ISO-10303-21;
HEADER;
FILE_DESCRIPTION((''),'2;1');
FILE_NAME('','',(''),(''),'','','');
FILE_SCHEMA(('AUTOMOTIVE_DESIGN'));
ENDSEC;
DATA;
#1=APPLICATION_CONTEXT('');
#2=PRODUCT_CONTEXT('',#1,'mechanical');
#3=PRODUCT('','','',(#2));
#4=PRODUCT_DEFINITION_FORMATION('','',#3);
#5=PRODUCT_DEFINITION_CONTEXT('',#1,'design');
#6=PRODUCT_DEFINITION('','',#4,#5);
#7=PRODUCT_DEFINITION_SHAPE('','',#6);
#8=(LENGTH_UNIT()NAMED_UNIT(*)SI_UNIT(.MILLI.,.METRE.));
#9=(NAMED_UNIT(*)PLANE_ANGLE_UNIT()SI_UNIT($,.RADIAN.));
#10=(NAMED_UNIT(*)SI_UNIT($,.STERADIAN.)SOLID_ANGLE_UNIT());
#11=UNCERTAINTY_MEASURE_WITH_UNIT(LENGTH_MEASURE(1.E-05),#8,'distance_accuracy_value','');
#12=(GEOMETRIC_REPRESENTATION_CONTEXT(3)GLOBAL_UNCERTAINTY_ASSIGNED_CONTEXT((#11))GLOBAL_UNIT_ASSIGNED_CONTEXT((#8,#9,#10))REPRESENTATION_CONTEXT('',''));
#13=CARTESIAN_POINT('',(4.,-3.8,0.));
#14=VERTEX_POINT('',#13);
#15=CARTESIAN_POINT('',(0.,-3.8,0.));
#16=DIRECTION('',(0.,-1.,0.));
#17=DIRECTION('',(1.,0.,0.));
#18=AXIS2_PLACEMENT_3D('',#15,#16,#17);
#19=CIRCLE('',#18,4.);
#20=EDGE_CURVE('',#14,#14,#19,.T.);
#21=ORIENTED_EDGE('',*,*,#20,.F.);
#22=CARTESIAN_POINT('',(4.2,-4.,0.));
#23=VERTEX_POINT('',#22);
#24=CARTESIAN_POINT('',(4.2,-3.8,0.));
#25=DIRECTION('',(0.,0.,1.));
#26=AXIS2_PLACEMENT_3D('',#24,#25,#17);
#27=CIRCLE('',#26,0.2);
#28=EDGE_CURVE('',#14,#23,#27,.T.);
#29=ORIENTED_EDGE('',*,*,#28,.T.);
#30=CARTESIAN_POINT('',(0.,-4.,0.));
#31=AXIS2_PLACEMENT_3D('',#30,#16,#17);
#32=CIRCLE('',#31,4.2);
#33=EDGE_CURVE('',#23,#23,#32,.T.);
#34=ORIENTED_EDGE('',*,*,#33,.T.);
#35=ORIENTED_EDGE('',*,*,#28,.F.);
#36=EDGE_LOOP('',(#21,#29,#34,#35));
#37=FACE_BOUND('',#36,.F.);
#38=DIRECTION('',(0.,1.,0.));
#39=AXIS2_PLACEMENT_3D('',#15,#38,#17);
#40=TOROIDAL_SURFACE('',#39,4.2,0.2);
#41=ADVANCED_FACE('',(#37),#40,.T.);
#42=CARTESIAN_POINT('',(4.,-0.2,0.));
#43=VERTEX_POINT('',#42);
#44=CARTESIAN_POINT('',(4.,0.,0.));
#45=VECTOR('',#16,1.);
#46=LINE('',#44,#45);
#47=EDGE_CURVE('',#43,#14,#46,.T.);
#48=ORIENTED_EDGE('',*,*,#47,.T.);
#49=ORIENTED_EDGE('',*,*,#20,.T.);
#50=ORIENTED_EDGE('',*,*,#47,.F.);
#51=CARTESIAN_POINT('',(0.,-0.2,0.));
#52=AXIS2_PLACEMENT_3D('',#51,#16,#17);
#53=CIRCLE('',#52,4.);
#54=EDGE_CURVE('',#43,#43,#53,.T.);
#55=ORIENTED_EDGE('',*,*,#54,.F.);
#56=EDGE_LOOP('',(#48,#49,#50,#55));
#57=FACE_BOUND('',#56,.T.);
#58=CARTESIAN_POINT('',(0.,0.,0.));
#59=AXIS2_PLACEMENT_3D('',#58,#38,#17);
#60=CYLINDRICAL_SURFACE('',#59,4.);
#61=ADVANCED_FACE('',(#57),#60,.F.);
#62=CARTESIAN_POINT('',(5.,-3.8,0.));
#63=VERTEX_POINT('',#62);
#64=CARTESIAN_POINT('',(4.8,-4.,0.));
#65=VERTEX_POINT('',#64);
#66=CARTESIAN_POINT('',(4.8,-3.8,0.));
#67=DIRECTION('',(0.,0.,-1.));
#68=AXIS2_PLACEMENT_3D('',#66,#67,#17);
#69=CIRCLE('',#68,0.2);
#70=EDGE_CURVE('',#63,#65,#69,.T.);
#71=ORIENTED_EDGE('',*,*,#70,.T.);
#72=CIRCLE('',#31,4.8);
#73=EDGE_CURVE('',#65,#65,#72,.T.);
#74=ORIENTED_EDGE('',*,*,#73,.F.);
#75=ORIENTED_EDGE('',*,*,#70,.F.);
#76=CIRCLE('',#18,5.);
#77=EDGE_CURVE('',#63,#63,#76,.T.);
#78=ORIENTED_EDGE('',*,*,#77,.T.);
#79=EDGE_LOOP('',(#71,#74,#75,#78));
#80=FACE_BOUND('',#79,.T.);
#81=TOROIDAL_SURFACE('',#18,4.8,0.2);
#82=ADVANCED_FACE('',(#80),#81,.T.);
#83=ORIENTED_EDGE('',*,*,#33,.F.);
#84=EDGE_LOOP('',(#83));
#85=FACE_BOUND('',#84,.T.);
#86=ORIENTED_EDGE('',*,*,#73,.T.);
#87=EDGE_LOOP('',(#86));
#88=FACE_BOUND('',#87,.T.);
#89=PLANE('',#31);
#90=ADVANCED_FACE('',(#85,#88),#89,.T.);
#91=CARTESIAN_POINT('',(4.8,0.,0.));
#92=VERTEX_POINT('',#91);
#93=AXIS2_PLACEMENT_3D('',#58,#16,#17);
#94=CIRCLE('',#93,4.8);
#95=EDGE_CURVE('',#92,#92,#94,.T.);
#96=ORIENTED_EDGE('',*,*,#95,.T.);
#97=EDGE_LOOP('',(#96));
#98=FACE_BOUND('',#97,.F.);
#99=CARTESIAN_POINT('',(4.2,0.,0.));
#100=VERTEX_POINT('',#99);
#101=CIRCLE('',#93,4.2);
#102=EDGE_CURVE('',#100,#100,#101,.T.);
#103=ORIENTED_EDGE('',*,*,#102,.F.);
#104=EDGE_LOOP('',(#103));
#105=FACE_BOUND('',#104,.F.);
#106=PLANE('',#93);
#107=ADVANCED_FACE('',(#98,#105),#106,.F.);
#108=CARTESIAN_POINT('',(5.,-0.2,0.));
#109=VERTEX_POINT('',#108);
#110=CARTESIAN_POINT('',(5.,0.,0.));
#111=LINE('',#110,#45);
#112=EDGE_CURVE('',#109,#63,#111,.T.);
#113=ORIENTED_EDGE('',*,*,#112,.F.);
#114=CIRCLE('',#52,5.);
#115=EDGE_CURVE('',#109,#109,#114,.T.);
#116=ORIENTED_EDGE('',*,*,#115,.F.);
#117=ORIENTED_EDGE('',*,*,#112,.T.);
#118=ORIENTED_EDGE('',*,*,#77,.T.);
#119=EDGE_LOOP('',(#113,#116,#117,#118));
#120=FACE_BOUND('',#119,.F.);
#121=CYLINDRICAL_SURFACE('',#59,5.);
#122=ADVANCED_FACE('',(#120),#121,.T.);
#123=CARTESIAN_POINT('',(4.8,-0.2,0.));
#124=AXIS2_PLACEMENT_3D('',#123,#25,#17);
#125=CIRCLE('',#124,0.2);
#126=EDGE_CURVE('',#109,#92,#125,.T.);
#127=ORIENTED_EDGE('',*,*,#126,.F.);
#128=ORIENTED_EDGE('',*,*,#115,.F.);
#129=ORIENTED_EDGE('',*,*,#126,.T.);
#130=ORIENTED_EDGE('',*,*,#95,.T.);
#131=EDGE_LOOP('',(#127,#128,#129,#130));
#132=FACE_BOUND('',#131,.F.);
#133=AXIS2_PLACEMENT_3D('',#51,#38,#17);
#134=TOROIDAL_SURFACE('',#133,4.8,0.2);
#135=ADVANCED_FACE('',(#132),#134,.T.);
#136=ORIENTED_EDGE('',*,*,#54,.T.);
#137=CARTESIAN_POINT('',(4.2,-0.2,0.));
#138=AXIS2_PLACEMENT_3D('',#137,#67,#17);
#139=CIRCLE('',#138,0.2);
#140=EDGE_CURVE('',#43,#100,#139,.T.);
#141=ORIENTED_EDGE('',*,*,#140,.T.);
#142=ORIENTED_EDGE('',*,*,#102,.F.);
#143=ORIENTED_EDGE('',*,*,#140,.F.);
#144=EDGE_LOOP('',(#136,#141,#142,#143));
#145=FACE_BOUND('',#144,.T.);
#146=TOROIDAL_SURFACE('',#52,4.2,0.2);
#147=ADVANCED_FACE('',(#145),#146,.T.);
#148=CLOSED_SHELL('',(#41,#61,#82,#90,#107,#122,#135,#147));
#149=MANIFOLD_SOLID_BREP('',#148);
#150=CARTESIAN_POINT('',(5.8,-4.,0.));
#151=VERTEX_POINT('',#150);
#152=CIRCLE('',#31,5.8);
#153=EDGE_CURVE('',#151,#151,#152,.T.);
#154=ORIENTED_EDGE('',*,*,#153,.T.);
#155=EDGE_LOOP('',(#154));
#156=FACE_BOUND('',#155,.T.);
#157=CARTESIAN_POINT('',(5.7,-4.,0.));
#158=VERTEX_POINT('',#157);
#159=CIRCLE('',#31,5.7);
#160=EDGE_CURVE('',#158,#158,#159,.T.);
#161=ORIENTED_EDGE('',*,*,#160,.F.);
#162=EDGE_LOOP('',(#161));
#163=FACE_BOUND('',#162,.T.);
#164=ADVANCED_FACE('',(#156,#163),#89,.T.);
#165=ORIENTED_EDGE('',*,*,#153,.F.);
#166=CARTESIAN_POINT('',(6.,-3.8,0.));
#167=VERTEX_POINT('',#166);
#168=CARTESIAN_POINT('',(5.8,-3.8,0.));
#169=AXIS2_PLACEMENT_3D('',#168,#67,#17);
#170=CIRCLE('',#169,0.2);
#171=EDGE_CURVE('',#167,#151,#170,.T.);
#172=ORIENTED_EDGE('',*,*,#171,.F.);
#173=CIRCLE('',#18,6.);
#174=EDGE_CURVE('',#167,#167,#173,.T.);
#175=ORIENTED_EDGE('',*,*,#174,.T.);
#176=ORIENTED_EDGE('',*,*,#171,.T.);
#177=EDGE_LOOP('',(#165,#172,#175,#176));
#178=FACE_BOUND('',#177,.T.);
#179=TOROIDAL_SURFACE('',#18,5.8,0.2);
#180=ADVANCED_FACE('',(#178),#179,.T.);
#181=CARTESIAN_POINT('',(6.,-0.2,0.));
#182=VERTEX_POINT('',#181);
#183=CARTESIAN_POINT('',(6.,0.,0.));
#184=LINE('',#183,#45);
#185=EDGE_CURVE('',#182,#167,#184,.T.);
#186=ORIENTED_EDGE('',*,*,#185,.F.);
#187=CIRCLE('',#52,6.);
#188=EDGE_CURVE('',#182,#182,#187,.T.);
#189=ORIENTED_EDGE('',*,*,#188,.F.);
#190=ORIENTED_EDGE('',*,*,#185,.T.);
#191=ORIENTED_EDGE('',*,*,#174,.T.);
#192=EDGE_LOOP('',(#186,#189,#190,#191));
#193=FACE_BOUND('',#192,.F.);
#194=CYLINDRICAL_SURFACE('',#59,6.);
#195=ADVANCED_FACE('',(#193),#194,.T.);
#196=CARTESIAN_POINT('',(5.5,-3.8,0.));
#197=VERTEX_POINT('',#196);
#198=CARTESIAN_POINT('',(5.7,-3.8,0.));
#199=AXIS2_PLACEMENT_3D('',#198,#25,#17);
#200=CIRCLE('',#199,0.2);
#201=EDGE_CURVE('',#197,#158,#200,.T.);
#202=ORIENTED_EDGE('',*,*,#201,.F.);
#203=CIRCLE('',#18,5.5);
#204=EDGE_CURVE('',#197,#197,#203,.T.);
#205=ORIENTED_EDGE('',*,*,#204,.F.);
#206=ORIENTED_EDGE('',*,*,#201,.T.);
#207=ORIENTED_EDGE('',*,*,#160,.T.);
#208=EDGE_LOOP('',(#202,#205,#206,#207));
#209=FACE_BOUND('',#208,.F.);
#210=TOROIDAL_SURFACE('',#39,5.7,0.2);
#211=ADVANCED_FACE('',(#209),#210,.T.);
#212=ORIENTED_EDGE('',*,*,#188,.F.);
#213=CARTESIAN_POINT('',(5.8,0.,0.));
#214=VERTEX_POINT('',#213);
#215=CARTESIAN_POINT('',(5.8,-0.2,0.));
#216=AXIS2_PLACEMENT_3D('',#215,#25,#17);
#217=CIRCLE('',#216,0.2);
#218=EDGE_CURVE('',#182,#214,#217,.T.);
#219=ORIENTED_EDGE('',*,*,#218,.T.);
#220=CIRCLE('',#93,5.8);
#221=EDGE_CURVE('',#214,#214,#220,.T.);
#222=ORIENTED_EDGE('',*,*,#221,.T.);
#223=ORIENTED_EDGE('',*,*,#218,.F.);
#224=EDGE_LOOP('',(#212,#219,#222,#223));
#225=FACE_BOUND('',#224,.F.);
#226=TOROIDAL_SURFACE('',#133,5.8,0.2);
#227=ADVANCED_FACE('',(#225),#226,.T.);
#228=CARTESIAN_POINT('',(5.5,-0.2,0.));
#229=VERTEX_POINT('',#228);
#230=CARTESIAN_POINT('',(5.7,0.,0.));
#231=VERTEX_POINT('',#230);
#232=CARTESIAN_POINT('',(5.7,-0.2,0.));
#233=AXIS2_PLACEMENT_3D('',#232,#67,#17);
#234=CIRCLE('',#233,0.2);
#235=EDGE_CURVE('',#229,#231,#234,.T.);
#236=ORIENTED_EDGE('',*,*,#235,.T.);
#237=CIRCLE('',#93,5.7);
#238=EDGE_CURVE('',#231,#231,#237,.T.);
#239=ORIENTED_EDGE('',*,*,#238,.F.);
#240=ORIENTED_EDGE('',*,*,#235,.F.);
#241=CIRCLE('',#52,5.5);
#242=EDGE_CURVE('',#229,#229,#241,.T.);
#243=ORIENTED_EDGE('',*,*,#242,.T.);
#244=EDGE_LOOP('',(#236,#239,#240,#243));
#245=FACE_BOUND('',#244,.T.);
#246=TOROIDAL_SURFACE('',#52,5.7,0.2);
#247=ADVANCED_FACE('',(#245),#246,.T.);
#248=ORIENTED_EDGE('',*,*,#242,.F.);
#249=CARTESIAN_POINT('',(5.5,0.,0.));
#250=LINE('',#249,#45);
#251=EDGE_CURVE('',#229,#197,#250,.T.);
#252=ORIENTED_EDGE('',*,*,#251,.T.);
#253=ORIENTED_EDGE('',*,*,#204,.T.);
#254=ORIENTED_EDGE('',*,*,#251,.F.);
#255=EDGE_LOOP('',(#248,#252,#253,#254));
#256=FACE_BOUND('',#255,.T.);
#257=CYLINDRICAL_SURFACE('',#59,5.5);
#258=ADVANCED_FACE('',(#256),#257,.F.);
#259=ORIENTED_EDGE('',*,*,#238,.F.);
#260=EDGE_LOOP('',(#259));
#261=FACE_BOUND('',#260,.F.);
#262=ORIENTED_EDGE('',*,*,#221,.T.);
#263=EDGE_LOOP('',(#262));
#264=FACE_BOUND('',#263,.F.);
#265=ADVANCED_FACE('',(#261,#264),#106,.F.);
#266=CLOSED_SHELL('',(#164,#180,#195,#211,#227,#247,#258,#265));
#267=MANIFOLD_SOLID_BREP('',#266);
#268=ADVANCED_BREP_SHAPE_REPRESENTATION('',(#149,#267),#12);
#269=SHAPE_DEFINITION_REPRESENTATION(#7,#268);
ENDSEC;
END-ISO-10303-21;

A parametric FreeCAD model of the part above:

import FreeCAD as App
import Part
import Sketcher
from FreeCAD import Vector

doc = App.newDocument("Part")
body = doc.addObject("PartDesign::Body", "Body")
body.AllowCompound = True

sketch1 = body.newObject("Sketcher::SketchObject", "Sketch")
sketch1.AttachmentSupport = (doc.getObject("XZ_Plane"), [""])
sketch1.MapMode = "FlatFace"
sketch1.addGeometry([
    Part.Circle(Vector(0, 0, 0), Vector(0, 0, 1), 6),
    Part.Circle(Vector(0, 0, 0), Vector(0, 0, 1), 5.5),
    Part.Circle(Vector(0, 0, 0), Vector(0, 0, 1), 5),
    Part.Circle(Vector(0, 0, 0), Vector(0, 0, 1), 4),
], False)
sketch1.addConstraint([
    Sketcher.Constraint("Coincident", 0, 3, -1, 1),
    Sketcher.Constraint("Coincident", 1, 3, -1, 1),
    Sketcher.Constraint("Coincident", 2, 3, -1, 1),
    Sketcher.Constraint("Coincident", 3, 3, -1, 1),
    Sketcher.Constraint("Diameter", 0, 12.0),
    Sketcher.Constraint("Diameter", 1, 11.0),
    Sketcher.Constraint("Diameter", 2, 10.0),
    Sketcher.Constraint("Diameter", 3, 8.0),
])
pad1 = body.newObject("PartDesign::Pad", "Pad")
pad1.Profile = sketch1
pad1.Length = 4
doc.recompute()

fillet = body.newObject("PartDesign::Fillet", "Fillet")
fillet.Base = (pad1, ["Edge1"])
fillet.UseAllEdges = True
fillet.Radius = 0.2

doc.recompute()
